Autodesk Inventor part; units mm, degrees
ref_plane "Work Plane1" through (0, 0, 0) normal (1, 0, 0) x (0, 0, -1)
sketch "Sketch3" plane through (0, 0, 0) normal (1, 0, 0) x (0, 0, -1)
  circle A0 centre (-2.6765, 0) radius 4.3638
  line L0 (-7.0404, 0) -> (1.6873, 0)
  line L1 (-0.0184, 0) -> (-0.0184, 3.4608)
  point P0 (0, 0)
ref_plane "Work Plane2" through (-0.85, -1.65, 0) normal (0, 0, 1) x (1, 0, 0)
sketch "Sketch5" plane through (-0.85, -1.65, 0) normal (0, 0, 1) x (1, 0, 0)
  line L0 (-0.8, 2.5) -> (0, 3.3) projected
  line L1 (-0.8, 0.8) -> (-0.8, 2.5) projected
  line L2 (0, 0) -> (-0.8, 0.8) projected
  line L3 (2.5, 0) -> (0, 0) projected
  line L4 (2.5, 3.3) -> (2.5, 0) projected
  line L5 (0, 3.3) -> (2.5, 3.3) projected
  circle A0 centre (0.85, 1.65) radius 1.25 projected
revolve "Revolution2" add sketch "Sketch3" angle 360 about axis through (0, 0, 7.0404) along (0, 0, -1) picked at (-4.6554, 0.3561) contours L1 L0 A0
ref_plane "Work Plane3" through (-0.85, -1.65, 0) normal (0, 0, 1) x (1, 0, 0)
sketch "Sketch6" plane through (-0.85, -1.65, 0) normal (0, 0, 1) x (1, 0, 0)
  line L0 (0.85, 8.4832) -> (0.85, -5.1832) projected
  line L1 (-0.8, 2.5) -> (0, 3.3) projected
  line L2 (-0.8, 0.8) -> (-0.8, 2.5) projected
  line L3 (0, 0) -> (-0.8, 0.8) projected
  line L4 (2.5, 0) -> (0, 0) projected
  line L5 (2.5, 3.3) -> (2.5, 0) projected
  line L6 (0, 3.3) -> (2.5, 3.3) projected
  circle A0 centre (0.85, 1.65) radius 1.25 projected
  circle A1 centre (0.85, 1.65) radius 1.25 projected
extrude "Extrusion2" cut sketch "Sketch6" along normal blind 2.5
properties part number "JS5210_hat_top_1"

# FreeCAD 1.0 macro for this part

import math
import FreeCAD as App
import Part
import Sketcher
from FreeCAD import Vector


def add_polygon(sketch, points):
    """Adds a closed chain of lines whose ends are joined by coincident constraints."""
    first, n = sketch.GeometryCount, len(points)
    for a, b in zip(points, points[1:] + points[:1]):
        sketch.addGeometry(Part.LineSegment(App.Vector(*a, 0), App.Vector(*b, 0)), False)
    for i in range(n):
        sketch.addConstraint(Sketcher.Constraint("Coincident", first + i, 2, first + (i + 1) % n, 1))

doc = App.newDocument("Part")
body = doc.addObject("PartDesign::Body", "Body")

# Sketch on YZ plane
sketch1 = doc.addObject("Sketcher::SketchObject", "Sketch")
body.addObject(sketch1)
sketch1.AttachmentSupport = (doc.YZ_Plane, [""])
sketch1.MapMode = "FlatFace"
sketch1.addGeometry(Part.LineSegment(Vector(0, 0.0184, 0), Vector(3.4608, 0.0184, 0)), False)
sketch1.addGeometry(Part.ArcOfCircle(Part.Circle(Vector(0, 2.6765, 0), Vector(0, 0, 1), 4.3638), math.radians(-37.526404), math.radians(90)), False)
sketch1.addGeometry(Part.LineSegment(Vector(0, 7.0404, 0), Vector(0, 0.0184, 0)), False)
sketch1.addConstraint(Sketcher.Constraint("Coincident", 0, 2, 1, 1))
sketch1.addConstraint(Sketcher.Constraint("Coincident", 1, 2, 2, 1))
sketch1.addConstraint(Sketcher.Constraint("Coincident", 2, 2, 0, 1))
sketch1.addConstraint(Sketcher.Constraint("Horizontal", 0))
sketch1.addConstraint(Sketcher.Constraint("Vertical", 2))
sketch1.addConstraint(Sketcher.Constraint("PointOnObject", 1, 3, -2))
sketch1.addConstraint(Sketcher.Constraint("PointOnObject", 1, 2, -2))
sketch1.addConstraint(Sketcher.Constraint("Radius", 1, 4.3638))
sketch1.addConstraint(Sketcher.Constraint("DistanceY", 2, 2, 2, 1, 7.022))
sketch1.addConstraint(Sketcher.Constraint("DistanceY", -1, 1, 1, 3, 2.6765))
revolution = doc.addObject("PartDesign::Revolution", "Revolution")
body.addObject(revolution)
revolution.Profile = sketch1
revolution.ReferenceAxis = (sketch1, ["V_Axis"])
revolution.Angle = 360

# Sketch on XY plane
sketch2 = doc.addObject("Sketcher::SketchObject", "Sketch001")
body.addObject(sketch2)
sketch2.AttachmentSupport = (doc.XY_Plane, [""])
sketch2.MapMode = "FlatFace"
add_polygon(sketch2, [(1.65, 1.65), (-0.85, 1.65), (-1.65, 0.85), (-1.65, -0.85), (-0.85, -1.65), (1.65, -1.65)])  # lines 0-5
sketch2.addConstraint(Sketcher.Constraint("Horizontal", 0))
sketch2.addConstraint(Sketcher.Constraint("Vertical", 2))
sketch2.addConstraint(Sketcher.Constraint("Horizontal", 4))
sketch2.addConstraint(Sketcher.Constraint("Vertical", 5))
sketch2.addConstraint(Sketcher.Constraint("Symmetric", 0, 2, 3, 2, -1))
sketch2.addConstraint(Sketcher.Constraint("Perpendicular", 1, 3))
sketch2.addConstraint(Sketcher.Constraint("Equal", 1, 3))
sketch2.addConstraint(Sketcher.Constraint("DistanceX", 0, 2, 0, 1, 2.5))
sketch2.addConstraint(Sketcher.Constraint("DistanceY", 2, 2, 2, 1, 1.7))
sketch2.addConstraint(Sketcher.Constraint("DistanceY", 5, 1, 5, 2, 3.3))
sketch2.addConstraint(Sketcher.Constraint("DistanceX", 0, 2, -1, 1, 0.85))
pocket1 = doc.addObject("PartDesign::Pocket", "Pocket")
body.addObject(pocket1)
pocket1.Profile = sketch2
pocket1.Length = 2.5
pocket1.Reversed = True

doc.recompute()
